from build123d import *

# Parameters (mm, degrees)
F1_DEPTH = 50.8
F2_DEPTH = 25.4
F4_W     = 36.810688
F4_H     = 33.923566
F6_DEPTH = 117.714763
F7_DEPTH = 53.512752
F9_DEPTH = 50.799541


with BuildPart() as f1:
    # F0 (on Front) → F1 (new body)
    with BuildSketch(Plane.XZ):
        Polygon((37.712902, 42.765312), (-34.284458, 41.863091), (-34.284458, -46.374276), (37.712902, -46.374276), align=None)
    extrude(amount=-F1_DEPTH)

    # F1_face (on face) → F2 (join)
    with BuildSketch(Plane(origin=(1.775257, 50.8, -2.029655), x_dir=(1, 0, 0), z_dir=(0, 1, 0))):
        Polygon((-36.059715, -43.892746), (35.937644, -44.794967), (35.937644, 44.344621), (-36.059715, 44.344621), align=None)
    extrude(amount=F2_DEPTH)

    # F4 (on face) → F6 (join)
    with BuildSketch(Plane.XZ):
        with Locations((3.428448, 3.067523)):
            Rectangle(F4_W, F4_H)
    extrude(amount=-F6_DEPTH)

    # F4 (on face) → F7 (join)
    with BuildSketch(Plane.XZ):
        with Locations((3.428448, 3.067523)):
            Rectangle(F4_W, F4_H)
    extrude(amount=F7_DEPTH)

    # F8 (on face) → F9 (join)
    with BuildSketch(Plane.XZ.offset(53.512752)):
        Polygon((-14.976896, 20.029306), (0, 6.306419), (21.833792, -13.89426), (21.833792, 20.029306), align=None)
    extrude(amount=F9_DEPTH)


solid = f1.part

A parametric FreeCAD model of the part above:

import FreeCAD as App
import Part
import Sketcher
Q = App.Units.Quantity

doc = App.newDocument("Part")
body = doc.addObject("PartDesign::Body", "Body")

# Sketch on XZ plane
sketch1 = body.newObject("Sketcher::SketchObject", "Sketch")
sketch1.AttachmentSupport = (doc.getObject("XZ_Plane"), [""])
sketch1.MapMode = "FlatFace"
sketch1.addGeometry([
    Part.LineSegment(App.Vector(38, 43, 0), App.Vector(-34, 42, 0)),
    Part.LineSegment(App.Vector(-34, 42, 0), App.Vector(-34, -46, 0)),
    Part.LineSegment(App.Vector(-34, -46, 0), App.Vector(38, -46, 0)),
    Part.LineSegment(App.Vector(38, -46, 0), App.Vector(38, 43, 0)),
], False)
sketch1.addConstraint([
    Sketcher.Constraint("Coincident", 0, 2, 1, 1),
    Sketcher.Constraint("Coincident", 1, 2, 2, 1),
    Sketcher.Constraint("Coincident", 2, 2, 3, 1),
    Sketcher.Constraint("Coincident", 3, 2, 0, 1),
    Sketcher.Constraint("Vertical", 1),
    Sketcher.Constraint("Horizontal", 2),
    Sketcher.Constraint("Vertical", 3),
    Sketcher.Constraint("DistanceX", 2, 1, 2, 2, Q("71.99736 mm")),
    Sketcher.Constraint("DistanceY", 3, 1, 3, 2, Q("89.139588 mm")),
    Sketcher.Constraint("DistanceY", 1, 2, 1, 1, Q("88.237367 mm")),
    Sketcher.Constraint("DistanceY", -1, 1, 0, 2, Q("41.863091 mm")),
    Sketcher.Constraint("DistanceX", 0, 2, -1, 1, Q("34.284458 mm")),
])
pad1 = body.newObject("PartDesign::Pad", "Pad")
pad1.Profile = sketch1
pad1.Length = Q("2 in")
pad1.Reversed = True

# Sketch on XZ plane
sketch2 = body.newObject("Sketcher::SketchObject", "Sketch001")
sketch2.AttachmentSupport = (doc.getObject("XZ_Plane"), [""])
sketch2.MapMode = "FlatFace"
sketch2.AttachmentOffset = App.Placement(App.Vector(0, 0, -2 * 25.4), App.Rotation())
sketch2.addGeometry([
    Part.LineSegment(App.Vector(-34, 42, 0), App.Vector(38, 43, 0)),
    Part.LineSegment(App.Vector(38, 43, 0), App.Vector(38, -46, 0)),
    Part.LineSegment(App.Vector(38, -46, 0), App.Vector(-34, -46, 0)),
    Part.LineSegment(App.Vector(-34, -46, 0), App.Vector(-34, 42, 0)),
], False)
sketch2.addConstraint([
    Sketcher.Constraint("Coincident", 0, 2, 1, 1),
    Sketcher.Constraint("Coincident", 1, 2, 2, 1),
    Sketcher.Constraint("Coincident", 2, 2, 3, 1),
    Sketcher.Constraint("Coincident", 3, 2, 0, 1),
    Sketcher.Constraint("Vertical", 1),
    Sketcher.Constraint("Horizontal", 2),
    Sketcher.Constraint("Vertical", 3),
    Sketcher.Constraint("DistanceX", 2, 2, 2, 1, Q("71.997359 mm")),
    Sketcher.Constraint("DistanceY", 1, 2, 1, 1, Q("89.139588 mm")),
    Sketcher.Constraint("DistanceX", -1, 1, 0, 2, Q("37.712901 mm")),
    Sketcher.Constraint("Distance", 0, Q("72.003012 mm")),
    Sketcher.Constraint("DistanceY", -1, 1, 3, 2, Q("41.863091 mm")),
])
pad2 = body.newObject("PartDesign::Pad", "Pad001")
pad2.Profile = sketch2
pad2.Length = Q("1 in")
pad2.Reversed = True

# Sketch on XZ plane
sketch3 = body.newObject("Sketcher::SketchObject", "Sketch002")
sketch3.AttachmentSupport = (doc.getObject("XZ_Plane"), [""])
sketch3.MapMode = "FlatFace"
sketch3.addGeometry([
    Part.LineSegment(App.Vector(-15, 20, 0), App.Vector(-15, -14, 0)),
    Part.LineSegment(App.Vector(-15, -14, 0), App.Vector(22, -14, 0)),
    Part.LineSegment(App.Vector(22, -14, 0), App.Vector(22, 20, 0)),
    Part.LineSegment(App.Vector(22, 20, 0), App.Vector(-15, 20, 0)),
], False)
sketch3.addConstraint([
    Sketcher.Constraint("Coincident", 0, 2, 1, 1),
    Sketcher.Constraint("Coincident", 1, 2, 2, 1),
    Sketcher.Constraint("Coincident", 2, 2, 3, 1),
    Sketcher.Constraint("Coincident", 3, 2, 0, 1),
    Sketcher.Constraint("Vertical", 0),
    Sketcher.Constraint("Horizontal", 1),
    Sketcher.Constraint("Vertical", 2),
    Sketcher.Constraint("Horizontal", 3),
    Sketcher.Constraint("DistanceX", 1, 1, 1, 2, Q("36.810688 mm")),
    Sketcher.Constraint("DistanceY", 0, 2, 0, 1, Q("33.923566 mm")),
    Sketcher.Constraint("DistanceY", 0, 2, -1, 1, Q("13.89426 mm")),
    Sketcher.Constraint("DistanceX", -1, 1, 1, 2, Q("21.833792 mm")),
])
pad3 = body.newObject("PartDesign::Pad", "Pad002")
pad3.Profile = sketch3
pad3.Length = 117.714763
pad3.Reversed = True

# Sketch on XZ plane
sketch4 = body.newObject("Sketcher::SketchObject", "Sketch003")
sketch4.AttachmentSupport = (doc.getObject("XZ_Plane"), [""])
sketch4.MapMode = "FlatFace"
sketch4.addGeometry([
    Part.LineSegment(App.Vector(-15, 20, 0), App.Vector(-15, -14, 0)),
    Part.LineSegment(App.Vector(-15, -14, 0), App.Vector(22, -14, 0)),
    Part.LineSegment(App.Vector(22, -14, 0), App.Vector(22, 20, 0)),
    Part.LineSegment(App.Vector(22, 20, 0), App.Vector(-15, 20, 0)),
], False)
sketch4.addConstraint([
    Sketcher.Constraint("Coincident", 0, 2, 1, 1),
    Sketcher.Constraint("Coincident", 1, 2, 2, 1),
    Sketcher.Constraint("Coincident", 2, 2, 3, 1),
    Sketcher.Constraint("Coincident", 3, 2, 0, 1),
    Sketcher.Constraint("Vertical", 0),
    Sketcher.Constraint("Horizontal", 1),
    Sketcher.Constraint("Vertical", 2),
    Sketcher.Constraint("Horizontal", 3),
    Sketcher.Constraint("DistanceX", 1, 1, 1, 2, Q("36.810688 mm")),
    Sketcher.Constraint("DistanceY", 0, 2, 0, 1, Q("33.923566 mm")),
    Sketcher.Constraint("DistanceY", 0, 2, -1, 1, Q("13.89426 mm")),
    Sketcher.Constraint("DistanceX", -1, 1, 1, 2, Q("21.833792 mm")),
])
pad4 = body.newObject("PartDesign::Pad", "Pad003")
pad4.Profile = sketch4
pad4.Length = 53.512752

# Sketch on XZ plane
sketch5 = body.newObject("Sketcher::SketchObject", "Sketch004")
sketch5.AttachmentSupport = (doc.getObject("XZ_Plane"), [""])
sketch5.MapMode = "FlatFace"
sketch5.AttachmentOffset = App.Placement(App.Vector(0, 0, 53.512752), App.Rotation())
sketch5.addGeometry([
    Part.LineSegment(App.Vector(-15, 20, 0), App.Vector(0, 6, 0)),
    Part.LineSegment(App.Vector(0, 6, 0), App.Vector(22, -14, 0)),
    Part.LineSegment(App.Vector(22, -14, 0), App.Vector(22, 20, 0)),
    Part.LineSegment(App.Vector(22, 20, 0), App.Vector(-15, 20, 0)),
], False)
sketch5.addConstraint([
    Sketcher.Constraint("Coincident", 0, 2, 1, 1),
    Sketcher.Constraint("Coincident", 1, 2, 2, 1),
    Sketcher.Constraint("Coincident", 2, 2, 3, 1),
    Sketcher.Constraint("Coincident", 3, 2, 0, 1),
    Sketcher.Constraint("Vertical", 2),
    Sketcher.Constraint("Horizontal", 3),
    Sketcher.Constraint("PointOnObject", 0, 2, -2),
    Sketcher.Constraint("DistanceX", 3, 2, 3, 1, Q("36.810688 mm")),
    Sketcher.Constraint("DistanceY", 2, 1, 2, 2, Q("33.923566 mm")),
    Sketcher.Constraint("DistanceY", -1, 1, 0, 2, Q("6.306419 mm")),
    Sketcher.Constraint("DistanceX", -1, 1, 1, 2, Q("21.833792 mm")),
    Sketcher.Constraint("DistanceY", 1, 2, -1, 1, Q("13.89426 mm")),
])
pad5 = body.newObject("PartDesign::Pad", "Pad004")
pad5.Profile = sketch5
pad5.Length = 50.799541

doc.recompute()
